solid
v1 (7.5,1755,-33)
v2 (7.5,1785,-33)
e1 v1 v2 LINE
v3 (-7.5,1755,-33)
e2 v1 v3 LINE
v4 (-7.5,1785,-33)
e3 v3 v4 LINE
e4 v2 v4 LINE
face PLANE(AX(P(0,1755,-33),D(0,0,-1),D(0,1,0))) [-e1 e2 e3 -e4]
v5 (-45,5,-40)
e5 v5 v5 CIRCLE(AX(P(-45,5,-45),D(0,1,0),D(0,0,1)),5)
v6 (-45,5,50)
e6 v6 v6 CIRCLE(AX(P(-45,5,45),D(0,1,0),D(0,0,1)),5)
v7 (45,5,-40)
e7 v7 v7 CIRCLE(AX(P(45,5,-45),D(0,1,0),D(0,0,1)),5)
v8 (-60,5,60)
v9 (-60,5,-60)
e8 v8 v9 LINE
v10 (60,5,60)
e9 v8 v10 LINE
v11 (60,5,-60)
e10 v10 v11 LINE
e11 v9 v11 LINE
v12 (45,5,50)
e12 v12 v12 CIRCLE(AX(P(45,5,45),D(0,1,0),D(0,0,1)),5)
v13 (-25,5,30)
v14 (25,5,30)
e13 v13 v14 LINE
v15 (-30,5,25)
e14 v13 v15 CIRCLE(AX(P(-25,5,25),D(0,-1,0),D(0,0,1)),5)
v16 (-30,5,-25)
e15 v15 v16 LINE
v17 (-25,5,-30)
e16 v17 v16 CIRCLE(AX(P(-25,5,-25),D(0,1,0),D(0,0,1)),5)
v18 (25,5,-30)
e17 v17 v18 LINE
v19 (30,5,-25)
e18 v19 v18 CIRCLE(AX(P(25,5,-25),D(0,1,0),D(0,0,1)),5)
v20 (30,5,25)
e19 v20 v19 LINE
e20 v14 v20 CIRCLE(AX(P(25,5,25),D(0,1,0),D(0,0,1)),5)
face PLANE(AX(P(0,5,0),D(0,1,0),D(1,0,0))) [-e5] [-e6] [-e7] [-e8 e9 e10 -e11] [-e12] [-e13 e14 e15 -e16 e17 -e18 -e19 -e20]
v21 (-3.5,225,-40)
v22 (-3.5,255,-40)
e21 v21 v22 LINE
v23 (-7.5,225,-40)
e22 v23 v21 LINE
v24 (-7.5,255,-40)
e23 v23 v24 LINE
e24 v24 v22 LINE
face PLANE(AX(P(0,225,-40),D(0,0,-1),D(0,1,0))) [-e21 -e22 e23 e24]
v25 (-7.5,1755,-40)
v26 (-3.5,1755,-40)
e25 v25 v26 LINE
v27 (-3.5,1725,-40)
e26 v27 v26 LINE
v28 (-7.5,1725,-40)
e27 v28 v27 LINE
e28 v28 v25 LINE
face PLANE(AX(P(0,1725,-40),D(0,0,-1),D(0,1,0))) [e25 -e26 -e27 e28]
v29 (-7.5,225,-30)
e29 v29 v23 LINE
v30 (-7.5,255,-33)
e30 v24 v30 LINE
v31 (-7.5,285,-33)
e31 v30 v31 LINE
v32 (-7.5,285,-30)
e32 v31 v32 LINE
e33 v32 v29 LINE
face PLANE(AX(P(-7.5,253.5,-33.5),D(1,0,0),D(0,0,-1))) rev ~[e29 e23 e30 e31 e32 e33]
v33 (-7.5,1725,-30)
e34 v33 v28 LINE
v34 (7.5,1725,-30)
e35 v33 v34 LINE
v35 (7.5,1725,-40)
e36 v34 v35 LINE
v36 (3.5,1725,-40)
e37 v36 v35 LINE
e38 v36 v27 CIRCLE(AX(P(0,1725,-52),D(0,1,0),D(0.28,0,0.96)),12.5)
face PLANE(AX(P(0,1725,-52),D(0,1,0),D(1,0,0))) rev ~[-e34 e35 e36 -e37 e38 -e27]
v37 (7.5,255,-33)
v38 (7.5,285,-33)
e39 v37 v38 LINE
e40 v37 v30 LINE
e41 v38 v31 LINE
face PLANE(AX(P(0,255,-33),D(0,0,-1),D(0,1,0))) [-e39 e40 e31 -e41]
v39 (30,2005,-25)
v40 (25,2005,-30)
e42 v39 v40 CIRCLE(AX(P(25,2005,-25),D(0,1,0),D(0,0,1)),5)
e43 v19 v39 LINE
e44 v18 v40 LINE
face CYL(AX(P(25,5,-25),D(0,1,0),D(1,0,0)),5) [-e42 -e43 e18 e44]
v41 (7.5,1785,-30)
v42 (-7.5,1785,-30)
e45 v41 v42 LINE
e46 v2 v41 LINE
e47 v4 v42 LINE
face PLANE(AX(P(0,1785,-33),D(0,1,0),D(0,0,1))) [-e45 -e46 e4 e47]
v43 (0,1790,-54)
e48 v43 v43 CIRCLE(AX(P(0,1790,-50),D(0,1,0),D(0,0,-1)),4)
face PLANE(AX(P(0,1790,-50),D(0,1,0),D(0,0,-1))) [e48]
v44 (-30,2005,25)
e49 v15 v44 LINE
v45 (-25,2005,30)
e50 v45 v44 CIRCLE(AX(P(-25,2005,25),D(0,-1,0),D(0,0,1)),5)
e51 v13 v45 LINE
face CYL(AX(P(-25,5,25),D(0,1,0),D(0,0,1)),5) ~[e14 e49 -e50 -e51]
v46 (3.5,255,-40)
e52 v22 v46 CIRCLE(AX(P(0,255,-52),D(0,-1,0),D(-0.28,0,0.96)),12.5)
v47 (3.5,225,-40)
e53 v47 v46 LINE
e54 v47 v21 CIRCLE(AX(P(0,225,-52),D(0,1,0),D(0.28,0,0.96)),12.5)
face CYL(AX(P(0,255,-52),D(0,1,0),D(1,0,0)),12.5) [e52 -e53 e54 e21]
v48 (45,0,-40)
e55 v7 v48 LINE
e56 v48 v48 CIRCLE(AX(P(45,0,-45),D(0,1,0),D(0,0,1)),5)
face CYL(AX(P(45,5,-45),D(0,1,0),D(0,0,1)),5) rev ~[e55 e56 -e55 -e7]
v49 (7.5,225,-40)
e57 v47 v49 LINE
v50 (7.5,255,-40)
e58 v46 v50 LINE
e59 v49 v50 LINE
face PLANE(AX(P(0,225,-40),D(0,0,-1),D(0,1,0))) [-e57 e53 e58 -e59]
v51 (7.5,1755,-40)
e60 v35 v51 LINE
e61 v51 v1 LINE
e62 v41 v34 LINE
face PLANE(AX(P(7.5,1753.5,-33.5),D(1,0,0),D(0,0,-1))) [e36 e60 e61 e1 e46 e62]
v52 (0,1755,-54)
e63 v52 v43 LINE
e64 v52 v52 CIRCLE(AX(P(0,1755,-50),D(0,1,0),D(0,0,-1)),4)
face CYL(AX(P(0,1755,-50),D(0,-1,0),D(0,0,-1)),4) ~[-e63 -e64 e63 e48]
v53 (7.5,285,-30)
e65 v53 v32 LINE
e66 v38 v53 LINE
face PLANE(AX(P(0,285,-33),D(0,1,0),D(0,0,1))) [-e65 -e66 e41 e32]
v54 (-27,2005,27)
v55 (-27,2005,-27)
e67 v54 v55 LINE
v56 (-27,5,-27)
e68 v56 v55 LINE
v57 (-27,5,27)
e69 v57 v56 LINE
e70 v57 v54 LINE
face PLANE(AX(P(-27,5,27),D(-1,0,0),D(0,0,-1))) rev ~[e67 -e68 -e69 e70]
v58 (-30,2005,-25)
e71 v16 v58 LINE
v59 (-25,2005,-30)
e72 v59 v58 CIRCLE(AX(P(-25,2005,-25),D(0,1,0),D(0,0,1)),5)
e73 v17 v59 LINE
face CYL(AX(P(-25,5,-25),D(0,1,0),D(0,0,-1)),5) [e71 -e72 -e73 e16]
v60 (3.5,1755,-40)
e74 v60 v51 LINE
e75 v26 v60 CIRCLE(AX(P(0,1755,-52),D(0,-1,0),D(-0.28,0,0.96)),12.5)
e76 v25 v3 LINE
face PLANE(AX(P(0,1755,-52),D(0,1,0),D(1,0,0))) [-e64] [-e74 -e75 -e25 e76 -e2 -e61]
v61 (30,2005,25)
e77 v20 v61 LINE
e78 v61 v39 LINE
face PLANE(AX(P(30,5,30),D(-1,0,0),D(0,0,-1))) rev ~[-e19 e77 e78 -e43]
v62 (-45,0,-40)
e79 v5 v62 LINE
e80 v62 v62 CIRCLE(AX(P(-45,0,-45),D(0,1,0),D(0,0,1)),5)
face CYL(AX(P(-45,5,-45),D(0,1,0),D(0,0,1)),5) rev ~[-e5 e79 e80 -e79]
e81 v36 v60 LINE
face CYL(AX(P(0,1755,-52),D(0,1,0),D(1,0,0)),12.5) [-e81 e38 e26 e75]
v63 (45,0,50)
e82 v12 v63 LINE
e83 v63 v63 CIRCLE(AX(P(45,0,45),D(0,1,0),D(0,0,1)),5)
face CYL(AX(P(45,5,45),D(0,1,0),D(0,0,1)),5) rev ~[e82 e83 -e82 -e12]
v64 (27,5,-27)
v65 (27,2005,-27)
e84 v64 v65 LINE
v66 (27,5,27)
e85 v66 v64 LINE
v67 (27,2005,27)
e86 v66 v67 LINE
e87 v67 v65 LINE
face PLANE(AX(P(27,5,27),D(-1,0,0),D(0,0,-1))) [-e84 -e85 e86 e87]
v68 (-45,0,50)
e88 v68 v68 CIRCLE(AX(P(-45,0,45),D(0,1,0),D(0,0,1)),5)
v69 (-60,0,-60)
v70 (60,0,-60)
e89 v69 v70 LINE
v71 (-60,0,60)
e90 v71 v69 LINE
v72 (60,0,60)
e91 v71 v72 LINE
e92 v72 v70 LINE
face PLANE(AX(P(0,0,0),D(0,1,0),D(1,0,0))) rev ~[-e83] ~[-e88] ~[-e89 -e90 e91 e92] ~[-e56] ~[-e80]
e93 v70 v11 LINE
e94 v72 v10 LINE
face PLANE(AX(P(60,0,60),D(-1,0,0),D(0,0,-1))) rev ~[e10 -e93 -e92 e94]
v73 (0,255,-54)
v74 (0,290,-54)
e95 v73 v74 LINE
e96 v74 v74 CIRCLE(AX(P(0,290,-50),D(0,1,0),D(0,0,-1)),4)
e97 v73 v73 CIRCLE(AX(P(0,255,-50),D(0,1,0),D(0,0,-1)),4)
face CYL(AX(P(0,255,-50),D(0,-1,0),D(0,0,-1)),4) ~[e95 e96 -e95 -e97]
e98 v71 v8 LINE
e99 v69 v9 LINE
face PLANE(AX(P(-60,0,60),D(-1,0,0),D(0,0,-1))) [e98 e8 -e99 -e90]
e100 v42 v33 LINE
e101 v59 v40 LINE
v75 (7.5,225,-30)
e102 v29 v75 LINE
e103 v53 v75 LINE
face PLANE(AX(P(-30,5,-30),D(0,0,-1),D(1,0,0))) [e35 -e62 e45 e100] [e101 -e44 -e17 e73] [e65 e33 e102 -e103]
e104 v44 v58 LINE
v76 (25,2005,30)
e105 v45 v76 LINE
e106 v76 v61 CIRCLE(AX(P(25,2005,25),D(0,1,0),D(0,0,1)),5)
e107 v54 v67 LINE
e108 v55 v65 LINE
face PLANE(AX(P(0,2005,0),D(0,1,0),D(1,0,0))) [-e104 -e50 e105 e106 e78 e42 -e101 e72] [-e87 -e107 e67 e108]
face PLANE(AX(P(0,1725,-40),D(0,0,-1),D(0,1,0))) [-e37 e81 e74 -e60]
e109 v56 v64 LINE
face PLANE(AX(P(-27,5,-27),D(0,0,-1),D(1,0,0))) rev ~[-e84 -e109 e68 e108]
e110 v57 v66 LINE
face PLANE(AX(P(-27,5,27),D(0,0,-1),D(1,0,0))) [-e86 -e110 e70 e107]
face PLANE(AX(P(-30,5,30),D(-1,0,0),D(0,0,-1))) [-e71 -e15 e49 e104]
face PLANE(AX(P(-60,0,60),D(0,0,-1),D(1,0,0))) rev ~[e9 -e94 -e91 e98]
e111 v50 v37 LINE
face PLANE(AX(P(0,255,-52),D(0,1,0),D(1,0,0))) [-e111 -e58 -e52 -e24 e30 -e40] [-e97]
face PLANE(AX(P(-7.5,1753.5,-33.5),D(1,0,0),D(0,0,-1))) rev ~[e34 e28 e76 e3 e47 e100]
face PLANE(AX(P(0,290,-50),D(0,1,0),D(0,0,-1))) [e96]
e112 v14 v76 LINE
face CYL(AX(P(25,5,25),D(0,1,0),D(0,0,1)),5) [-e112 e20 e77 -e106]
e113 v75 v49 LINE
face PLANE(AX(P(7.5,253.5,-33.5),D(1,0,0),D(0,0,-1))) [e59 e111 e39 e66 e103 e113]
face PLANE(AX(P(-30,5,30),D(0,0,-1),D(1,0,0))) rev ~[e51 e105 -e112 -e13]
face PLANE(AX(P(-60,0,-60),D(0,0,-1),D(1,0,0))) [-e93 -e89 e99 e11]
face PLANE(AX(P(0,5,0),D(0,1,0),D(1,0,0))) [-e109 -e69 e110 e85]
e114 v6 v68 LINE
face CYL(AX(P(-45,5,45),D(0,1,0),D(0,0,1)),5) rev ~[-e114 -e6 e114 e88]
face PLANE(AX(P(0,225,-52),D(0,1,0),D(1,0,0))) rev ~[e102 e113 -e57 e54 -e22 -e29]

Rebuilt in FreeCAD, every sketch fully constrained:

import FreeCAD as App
import Part
import Sketcher
Q = App.Units.Quantity


def edges_at(feature, points):
    """Names of the edges that pass closest to the given points."""
    edges = feature.Shape.Edges
    near = lambda p: min(range(len(edges)), key=lambda i: edges[i].distToShape(Part.Vertex(*p))[0])
    return sorted({f"Edge{near(p) + 1}" for p in points})


def add_polygon(sketch, points):
    """Adds a closed chain of lines whose ends are joined by coincident constraints."""
    first, n = sketch.GeometryCount, len(points)
    for a, b in zip(points, points[1:] + points[:1]):
        sketch.addGeometry(Part.LineSegment(App.Vector(*a, 0), App.Vector(*b, 0)), False)
    for i in range(n):
        sketch.addConstraint(Sketcher.Constraint("Coincident", first + i, 2, first + (i + 1) % n, 1))

doc = App.newDocument("Part")
params = doc.addObject("Spreadsheet::Sheet", "Params")
for row, (alias, value) in enumerate([
    ("sketch1_width", "120 mm"),
    ("pad1_length", "5 mm"),
    ("sketch2_width", "60 mm"),
    ("sketch2_width2", "54 mm"),
    ("pad2_length", "2000 mm"),
    ("fillet_radius", "5 mm"),
    ("sketch3_diameter", "10 mm"),
    ("pocket1_length", "2000 mm"),
    ("sketch4_width", "60 mm"),
    ("sketch4_height", "10 mm"),
    ("sketch4_height2", "7 mm"),
    ("pad3_length", "15 mm"),
    ("linearpattern_pitch", "1500 mm"),
    ("sketch5_diameter", "25 mm"),
    ("pad4_length", "30 mm"),
    ("sketch6_diameter", "8 mm"),
    ("pad5_length", "35 mm"),
    ("linearpattern2_pitch", "1500 mm"),
], start=1):
    params.set(f"A{row}", alias)
    params.set(f"B{row}", "=" + value)
    params.setAlias(f"B{row}", alias)

body = doc.addObject("PartDesign::Body", "Body")

# Sketch on XZ plane
sketch1 = body.newObject("Sketcher::SketchObject", "Sketch")
sketch1.AttachmentSupport = (doc.getObject("XZ_Plane"), [""])
sketch1.MapMode = "FlatFace"
add_polygon(sketch1, [(-60, -60), (-60, 60), (60, 60), (60, -60)])  # lines 0-3
sketch1.addConstraint([
    Sketcher.Constraint("Vertical", 0),
    Sketcher.Constraint("Horizontal", 1),
    Sketcher.Constraint("Vertical", 2),
    Sketcher.Constraint("Horizontal", 3),
    Sketcher.Constraint("Symmetric", 0, 2, 2, 2, -1, 1),
    Sketcher.Constraint("Equal", 3, 0),
    Sketcher.Constraint("DistanceX", 1, 1, 1, 2, Q("120 mm")),
])
sketch1.setExpression("Constraints[10]", "Params.sketch1_width")
pad1 = body.newObject("PartDesign::Pad", "Pad")
pad1.Profile = sketch1
pad1.setExpression("Length", "Params.pad1_length")
pad1.Reversed = True

# Sketch on XZ plane
sketch2 = body.newObject("Sketcher::SketchObject", "Sketch001")
sketch2.AttachmentSupport = (doc.getObject("XZ_Plane"), [""])
sketch2.MapMode = "FlatFace"
sketch2.AttachmentOffset = App.Placement(App.Vector(0, 0, -5), App.Rotation())
add_polygon(sketch2, [(-30, -30), (-30, 30), (30, 30), (30, -30)])  # lines 0-3
add_polygon(sketch2, [(27, 27), (-27, 27), (-27, -27), (27, -27)])  # lines 4-7
sketch2.addConstraint([
    Sketcher.Constraint("Vertical", 0),
    Sketcher.Constraint("Horizontal", 1),
    Sketcher.Constraint("Vertical", 2),
    Sketcher.Constraint("Horizontal", 3),
    Sketcher.Constraint("Horizontal", 4),
    Sketcher.Constraint("Vertical", 5),
    Sketcher.Constraint("Horizontal", 6),
    Sketcher.Constraint("Vertical", 7),
    Sketcher.Constraint("Symmetric", 0, 2, 2, 2, -1, 1),
    Sketcher.Constraint("Symmetric", 4, 2, 6, 2, -1, 1),
    Sketcher.Constraint("Equal", 3, 0),
    Sketcher.Constraint("Equal", 6, 5),
    Sketcher.Constraint("DistanceX", 1, 1, 1, 2, Q("60 mm")),
    Sketcher.Constraint("DistanceX", 4, 2, 4, 1, Q("54 mm")),
])
sketch2.setExpression("Constraints[20]", "Params.sketch2_width")
sketch2.setExpression("Constraints[21]", "Params.sketch2_width2")
pad2 = body.newObject("PartDesign::Pad", "Pad001")
pad2.Profile = sketch2
pad2.setExpression("Length", "Params.pad2_length")
pad2.Reversed = True
doc.recompute()

fillet = body.newObject("PartDesign::Fillet", "Fillet")
fillet.Base = (pad2, edges_at(pad2, [
    (30, 1005, -30),
    (-30, 1005, -30),
    (-30, 1005, 30),
    (30, 1005, 30),
]))
fillet.setExpression("Radius", "Params.fillet_radius")

# Sketch on XZ plane
sketch3 = body.newObject("Sketcher::SketchObject", "Sketch002")
sketch3.AttachmentSupport = (doc.getObject("XZ_Plane"), [""])
sketch3.MapMode = "FlatFace"
sketch3.AttachmentOffset = App.Placement(App.Vector(0, 0, -5), App.Rotation())
sketch3.addGeometry([
    Part.Circle(App.Vector(-45, -45, 0), App.Vector(0, 0, 1), 5),
    Part.Circle(App.Vector(45, -45, 0), App.Vector(0, 0, 1), 5),
    Part.Circle(App.Vector(-45, 45, 0), App.Vector(0, 0, 1), 5),
    Part.Circle(App.Vector(45, 45, 0), App.Vector(0, 0, 1), 5),
], False)
sketch3.addConstraint([
    Sketcher.Constraint("Equal", 0, 1),
    Sketcher.Constraint("Equal", 1, 2),
    Sketcher.Constraint("Equal", 2, 3),
    Sketcher.Constraint("Symmetric", 1, 3, 2, 3, -1, 1),
    Sketcher.Constraint("Symmetric", 0, 3, 3, 3, -1, 1),
    Sketcher.Constraint("Symmetric", 0, 3, 1, 3, -2),
    Sketcher.Constraint("Diameter", 0, Q("10 mm")),
    Sketcher.Constraint("DistanceX", 0, 3, -1, 1, Q("45 mm")),
    Sketcher.Constraint("DistanceY", 0, 3, -1, 1, Q("45 mm")),
])
sketch3.setExpression("Constraints[6]", "Params.sketch3_diameter")
pocket1 = body.newObject("PartDesign::Pocket", "Pocket")
pocket1.Profile = sketch3
pocket1.setExpression("Length", "Params.pocket1_length")
pocket1.Reversed = True

# Sketch on YZ plane
sketch4 = body.newObject("Sketcher::SketchObject", "Sketch003")
sketch4.AttachmentSupport = (doc.getObject("YZ_Plane"), [""])
sketch4.MapMode = "FlatFace"
add_polygon(sketch4, [(1785, -30), (1725, -30), (1725, -40), (1755, -40), (1755, -33), (1785, -33)])  # lines 0-5
sketch4.addConstraint([
    Sketcher.Constraint("Horizontal", 0),
    Sketcher.Constraint("Vertical", 1),
    Sketcher.Constraint("Horizontal", 2),
    Sketcher.Constraint("Vertical", 3),
    Sketcher.Constraint("Horizontal", 4),
    Sketcher.Constraint("Vertical", 5),
    Sketcher.Constraint("Equal", 2, 4),
    Sketcher.Constraint("DistanceX", 0, 2, 0, 1, Q("60 mm")),
    Sketcher.Constraint("DistanceY", 1, 2, 1, 1, Q("10 mm")),
    Sketcher.Constraint("DistanceY", 3, 1, 3, 2, Q("7 mm")),
    Sketcher.Constraint("DistanceX", -1, 1, 0, 2, Q("1725 mm")),
    Sketcher.Constraint("DistanceY", 0, 2, -1, 1, Q("30 mm")),
])
sketch4.setExpression("Constraints[13]", "Params.sketch4_width")
sketch4.setExpression("Constraints[14]", "Params.sketch4_height")
sketch4.setExpression("Constraints[15]", "Params.sketch4_height2")
pad3 = body.newObject("PartDesign::Pad", "Pad002")
pad3.Profile = sketch4
pad3.setExpression("Length", "Params.pad3_length")
pad3.Midplane = True
doc.recompute()

linearpattern = body.newObject("PartDesign::LinearPattern", "LinearPattern")
linearpattern.Originals = [pad3]
linearpattern.Direction = (doc.getObject("Y_Axis"), [""])
linearpattern.Mode = "offset"
linearpattern.setExpression("Offset", "Params.linearpattern_pitch")
linearpattern.Occurrences = 2
linearpattern.Reversed = True
body.Tip = linearpattern

# Sketch on XZ plane
sketch5 = body.newObject("Sketcher::SketchObject", "Sketch004")
sketch5.AttachmentSupport = (doc.getObject("XZ_Plane"), [""])
sketch5.MapMode = "FlatFace"
sketch5.AttachmentOffset = App.Placement(App.Vector(0, 0, -1755), App.Rotation())
sketch5.addGeometry(Part.Circle(App.Vector(0, -52, 0), App.Vector(0, 0, 1), 12), False)
sketch5.addConstraint([
    Sketcher.Constraint("PointOnObject", 0, 3, -2),
    Sketcher.Constraint("Diameter", 0, Q("25 mm")),
    Sketcher.Constraint("DistanceY", 0, 3, -1, 1, Q("52 mm")),
])
sketch5.setExpression("Constraints[1]", "Params.sketch5_diameter")
pad4 = body.newObject("PartDesign::Pad", "Pad003")
pad4.Profile = sketch5
pad4.setExpression("Length", "Params.pad4_length")

# Sketch on XZ plane
sketch6 = body.newObject("Sketcher::SketchObject", "Sketch005")
sketch6.AttachmentSupport = (doc.getObject("XZ_Plane"), [""])
sketch6.MapMode = "FlatFace"
sketch6.AttachmentOffset = App.Placement(App.Vector(0, 0, -1755), App.Rotation())
sketch6.addGeometry(Part.Circle(App.Vector(0, -50, 0), App.Vector(0, 0, 1), 4), False)
sketch6.addConstraint([
    Sketcher.Constraint("PointOnObject", 0, 3, -2),
    Sketcher.Constraint("Diameter", 0, Q("8 mm")),
    Sketcher.Constraint("DistanceY", 0, 3, -1, 1, Q("50 mm")),
])
sketch6.setExpression("Constraints[1]", "Params.sketch6_diameter")
pad5 = body.newObject("PartDesign::Pad", "Pad004")
pad5.Profile = sketch6
pad5.setExpression("Length", "Params.pad5_length")
pad5.Reversed = True
doc.recompute()

linearpattern2 = body.newObject("PartDesign::LinearPattern", "LinearPattern001")
linearpattern2.Originals = [pad4, pad5]
linearpattern2.Direction = (doc.getObject("Y_Axis"), [""])
linearpattern2.Mode = "offset"
linearpattern2.setExpression("Offset", "Params.linearpattern2_pitch")
linearpattern2.Occurrences = 2
linearpattern2.Reversed = True
body.Tip = linearpattern2

doc.recompute()
